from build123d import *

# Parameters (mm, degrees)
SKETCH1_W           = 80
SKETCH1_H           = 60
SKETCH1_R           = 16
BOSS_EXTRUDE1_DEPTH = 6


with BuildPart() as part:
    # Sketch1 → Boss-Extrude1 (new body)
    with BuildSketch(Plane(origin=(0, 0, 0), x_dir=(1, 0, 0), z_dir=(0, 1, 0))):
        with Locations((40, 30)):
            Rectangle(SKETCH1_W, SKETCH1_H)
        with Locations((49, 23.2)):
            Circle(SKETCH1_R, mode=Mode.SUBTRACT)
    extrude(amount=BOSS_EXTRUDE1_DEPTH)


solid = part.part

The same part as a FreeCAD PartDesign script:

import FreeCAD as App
import Part
import Sketcher
from FreeCAD import Vector

doc = App.newDocument("Part")
body = doc.addObject("PartDesign::Body", "Body")

sketch1 = body.newObject("Sketcher::SketchObject", "Sketch")
sketch1.AttachmentSupport = (doc.getObject("XZ_Plane"), [""])
sketch1.MapMode = "FlatFace"
sketch1.addGeometry(Part.LineSegment(Vector(0, -60, 0), Vector(0, 0, 0)), False)
sketch1.addGeometry(Part.LineSegment(Vector(0, 0, 0), Vector(80, 0, 0)), False)
sketch1.addGeometry(Part.LineSegment(Vector(80, 0, 0), Vector(80, -60, 0)), False)
sketch1.addGeometry(Part.LineSegment(Vector(80, -60, 0), Vector(0, -60, 0)), False)
sketch1.addGeometry(Part.Circle(Vector(49, -23.2, 0), Vector(0, 0, 1), 16), False)
sketch1.addConstraint(Sketcher.Constraint("Coincident", 0, 2, 1, 1))
sketch1.addConstraint(Sketcher.Constraint("Coincident", 1, 2, 2, 1))
sketch1.addConstraint(Sketcher.Constraint("Coincident", 2, 2, 3, 1))
sketch1.addConstraint(Sketcher.Constraint("Coincident", 3, 2, 0, 1))
sketch1.addConstraint(Sketcher.Constraint("Vertical", 0))
sketch1.addConstraint(Sketcher.Constraint("Horizontal", 1))
sketch1.addConstraint(Sketcher.Constraint("Vertical", 2))
sketch1.addConstraint(Sketcher.Constraint("Horizontal", 3))
sketch1.addConstraint(Sketcher.Constraint("Coincident", 0, 2, -1, 1))
sketch1.addConstraint(Sketcher.Constraint("Diameter", 4, 32.0))
sketch1.addConstraint(Sketcher.Constraint("DistanceX", 1, 1, 1, 2, 80.0))
sketch1.addConstraint(Sketcher.Constraint("DistanceY", 0, 1, 0, 2, 60.0))
sketch1.addConstraint(Sketcher.Constraint("DistanceX", -1, 1, 4, 3, 49.0))
sketch1.addConstraint(Sketcher.Constraint("DistanceY", 4, 3, -1, 1, 23.2))
pad1 = body.newObject("PartDesign::Pad", "Pad")
pad1.Profile = sketch1
pad1.Length = 6
pad1.Reversed = True

doc.recompute()
